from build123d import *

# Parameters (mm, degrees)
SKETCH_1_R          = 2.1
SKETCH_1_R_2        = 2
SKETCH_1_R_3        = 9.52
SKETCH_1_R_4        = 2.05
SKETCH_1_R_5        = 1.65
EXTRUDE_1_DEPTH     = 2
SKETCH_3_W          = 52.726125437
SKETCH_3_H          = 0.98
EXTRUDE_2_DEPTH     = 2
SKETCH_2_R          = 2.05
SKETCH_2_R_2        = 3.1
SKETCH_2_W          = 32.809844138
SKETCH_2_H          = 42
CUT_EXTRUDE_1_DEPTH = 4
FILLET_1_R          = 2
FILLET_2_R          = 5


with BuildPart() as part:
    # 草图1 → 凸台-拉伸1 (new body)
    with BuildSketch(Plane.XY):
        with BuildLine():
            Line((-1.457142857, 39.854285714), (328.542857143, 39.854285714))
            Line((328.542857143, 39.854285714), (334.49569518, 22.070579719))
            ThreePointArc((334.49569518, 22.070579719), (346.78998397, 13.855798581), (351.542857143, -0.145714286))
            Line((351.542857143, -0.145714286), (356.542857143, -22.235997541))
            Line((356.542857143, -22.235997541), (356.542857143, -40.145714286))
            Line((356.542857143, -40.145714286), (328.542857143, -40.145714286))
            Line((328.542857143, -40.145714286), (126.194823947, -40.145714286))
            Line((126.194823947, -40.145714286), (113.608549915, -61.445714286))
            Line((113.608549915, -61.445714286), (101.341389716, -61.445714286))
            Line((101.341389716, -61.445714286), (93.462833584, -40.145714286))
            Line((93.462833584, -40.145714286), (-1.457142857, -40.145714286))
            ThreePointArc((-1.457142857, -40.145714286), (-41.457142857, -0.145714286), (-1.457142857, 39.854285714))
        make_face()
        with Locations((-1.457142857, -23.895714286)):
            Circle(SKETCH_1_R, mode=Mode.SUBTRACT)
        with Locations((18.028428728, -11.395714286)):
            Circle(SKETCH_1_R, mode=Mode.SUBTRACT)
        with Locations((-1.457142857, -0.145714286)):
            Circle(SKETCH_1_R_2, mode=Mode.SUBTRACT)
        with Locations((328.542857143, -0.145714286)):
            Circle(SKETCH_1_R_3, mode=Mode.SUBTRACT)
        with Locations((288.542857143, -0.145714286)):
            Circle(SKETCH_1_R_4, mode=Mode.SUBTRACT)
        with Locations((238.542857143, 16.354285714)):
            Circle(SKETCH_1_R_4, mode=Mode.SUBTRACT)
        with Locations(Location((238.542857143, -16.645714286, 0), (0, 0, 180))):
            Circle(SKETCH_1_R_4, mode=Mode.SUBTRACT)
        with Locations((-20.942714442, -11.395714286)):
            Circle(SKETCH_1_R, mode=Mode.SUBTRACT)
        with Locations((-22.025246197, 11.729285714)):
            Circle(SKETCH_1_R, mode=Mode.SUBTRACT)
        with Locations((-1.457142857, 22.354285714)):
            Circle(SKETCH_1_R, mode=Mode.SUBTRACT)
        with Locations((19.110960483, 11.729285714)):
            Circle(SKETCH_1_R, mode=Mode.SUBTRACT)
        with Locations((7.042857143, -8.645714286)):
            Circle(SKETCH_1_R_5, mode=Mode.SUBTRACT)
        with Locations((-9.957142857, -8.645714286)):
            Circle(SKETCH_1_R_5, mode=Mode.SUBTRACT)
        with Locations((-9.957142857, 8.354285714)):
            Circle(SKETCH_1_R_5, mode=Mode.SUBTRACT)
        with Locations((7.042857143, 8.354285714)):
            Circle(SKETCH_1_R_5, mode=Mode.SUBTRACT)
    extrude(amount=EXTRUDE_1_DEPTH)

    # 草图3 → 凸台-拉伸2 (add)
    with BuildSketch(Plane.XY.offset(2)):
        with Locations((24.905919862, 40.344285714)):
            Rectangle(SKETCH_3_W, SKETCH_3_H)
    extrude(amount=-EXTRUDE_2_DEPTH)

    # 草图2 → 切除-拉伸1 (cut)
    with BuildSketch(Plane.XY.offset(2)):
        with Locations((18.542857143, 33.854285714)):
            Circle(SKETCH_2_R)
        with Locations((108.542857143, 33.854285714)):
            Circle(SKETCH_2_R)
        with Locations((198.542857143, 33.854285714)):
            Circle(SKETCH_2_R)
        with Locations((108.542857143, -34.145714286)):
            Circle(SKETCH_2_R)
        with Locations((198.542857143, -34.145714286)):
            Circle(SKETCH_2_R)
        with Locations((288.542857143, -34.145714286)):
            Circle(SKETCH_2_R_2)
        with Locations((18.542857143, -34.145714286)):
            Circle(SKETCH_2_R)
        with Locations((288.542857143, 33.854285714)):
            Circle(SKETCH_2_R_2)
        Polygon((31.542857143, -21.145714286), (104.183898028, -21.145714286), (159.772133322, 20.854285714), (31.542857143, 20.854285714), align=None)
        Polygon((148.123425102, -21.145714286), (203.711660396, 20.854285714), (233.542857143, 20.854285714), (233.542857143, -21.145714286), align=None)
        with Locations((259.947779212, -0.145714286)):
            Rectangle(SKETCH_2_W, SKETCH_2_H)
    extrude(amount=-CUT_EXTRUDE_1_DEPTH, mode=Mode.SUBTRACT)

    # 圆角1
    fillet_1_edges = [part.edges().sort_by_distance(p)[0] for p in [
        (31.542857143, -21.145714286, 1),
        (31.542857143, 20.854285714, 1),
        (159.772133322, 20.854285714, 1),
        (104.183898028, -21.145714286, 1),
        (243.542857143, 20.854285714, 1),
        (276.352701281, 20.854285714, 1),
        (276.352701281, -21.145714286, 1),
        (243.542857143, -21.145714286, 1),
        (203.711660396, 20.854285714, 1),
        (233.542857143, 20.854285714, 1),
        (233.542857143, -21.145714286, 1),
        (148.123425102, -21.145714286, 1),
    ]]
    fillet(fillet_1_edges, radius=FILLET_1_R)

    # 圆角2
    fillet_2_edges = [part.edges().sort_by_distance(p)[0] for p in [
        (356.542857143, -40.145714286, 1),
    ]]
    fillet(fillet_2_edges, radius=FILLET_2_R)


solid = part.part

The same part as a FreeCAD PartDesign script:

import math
import FreeCAD as App
import Part
import Sketcher

V = App.Vector


def edges_at(feature, points):
    """Names of the edges that pass closest to the given points."""
    edges = feature.Shape.Edges
    near = lambda p: min(range(len(edges)), key=lambda i: edges[i].distToShape(Part.Vertex(*p))[0])
    return sorted({f"Edge{near(p) + 1}" for p in points})


def add_polygon(sketch, points):
    """Adds a closed chain of lines whose ends are joined by coincident constraints."""
    first, n = sketch.GeometryCount, len(points)
    for a, b in zip(points, points[1:] + points[:1]):
        sketch.addGeometry(Part.LineSegment(App.Vector(*a, 0), App.Vector(*b, 0)), False)
    for i in range(n):
        sketch.addConstraint(Sketcher.Constraint("Coincident", first + i, 2, first + (i + 1) % n, 1))

doc = App.newDocument("Part")
body = doc.addObject("PartDesign::Body", "Body")

# Sketch on XY plane
sketch1 = body.newObject("Sketcher::SketchObject", "Sketch")
sketch1.AttachmentSupport = (doc.getObject("XY_Plane"), [""])
sketch1.MapMode = "FlatFace"
sketch1.addGeometry(Part.LineSegment(V(328.542857, 39.854286, 0), V(-1.457143, 39.854286, 0)), False)
sketch1.addGeometry(Part.ArcOfCircle(Part.Circle(V(-1.457143, -0.145714, 0), V(0, 0, 1), 40), math.radians(90), math.radians(270)), False)
sketch1.addGeometry(Part.LineSegment(V(-1.457143, -40.145714, 0), V(93.462834, -40.145714, 0)), False)
sketch1.addGeometry(Part.LineSegment(V(93.462834, -40.145714, 0), V(101.34139, -61.445714, 0)), False)
sketch1.addGeometry(Part.LineSegment(V(101.34139, -61.445714, 0), V(113.60855, -61.445714, 0)), False)
sketch1.addGeometry(Part.LineSegment(V(113.60855, -61.445714, 0), V(126.194824, -40.145714, 0)), False)
sketch1.addGeometry(Part.LineSegment(V(126.194824, -40.145714, 0), V(356.542857, -40.145714, 0)), False)
sketch1.addGeometry(Part.LineSegment(V(356.542857, -40.145714, 0), V(356.542857, -22.235998, 0)), False)
sketch1.addGeometry(Part.LineSegment(V(356.542857, -22.235998, 0), V(351.542857, -0.145714, 0)), False)
sketch1.addGeometry(Part.ArcOfCircle(Part.Circle(V(328.542857, -0.145714, 0), V(0, 0, 1), 23), math.radians(0), math.radians(75)), False)
sketch1.addGeometry(Part.LineSegment(V(334.495695, 22.07058, 0), V(328.542857, 39.854286, 0)), False)
sketch1.addGeometry(Part.Circle(V(238.542857, -16.645714, 0), V(0, 0, 1), 2.05), False)
sketch1.addGeometry(Part.Circle(V(-1.457143, -23.895714, 0), V(0, 0, 1), 2.1), False)
sketch1.addGeometry(Part.Circle(V(18.028429, -11.395714, 0), V(0, 0, 1), 2.1), False)
sketch1.addGeometry(Part.Circle(V(-20.942714, -11.395714, 0), V(0, 0, 1), 2.1), False)
sketch1.addGeometry(Part.Circle(V(7.042857, -8.645714, 0), V(0, 0, 1), 1.65), False)
sketch1.addGeometry(Part.Circle(V(-9.957143, -8.645714, 0), V(0, 0, 1), 1.65), False)
sketch1.addGeometry(Part.Circle(V(328.542857, -0.145714, 0), V(0, 0, 1), 9.52), False)
sketch1.addGeometry(Part.Circle(V(288.542857, -0.145714, 0), V(0, 0, 1), 2.05), False)
sketch1.addGeometry(Part.Circle(V(238.542857, 16.354286, 0), V(0, 0, 1), 2.05), False)
sketch1.addGeometry(Part.Circle(V(-1.457143, -0.145714, 0), V(0, 0, 1), 2), False)
sketch1.addGeometry(Part.Circle(V(7.042857, 8.354286, 0), V(0, 0, 1), 1.65), False)
sketch1.addGeometry(Part.Circle(V(-9.957143, 8.354286, 0), V(0, 0, 1), 1.65), False)
sketch1.addGeometry(Part.Circle(V(19.11096, 11.729286, 0), V(0, 0, 1), 2.1), False)
sketch1.addGeometry(Part.Circle(V(-22.025246, 11.729286, 0), V(0, 0, 1), 2.1), False)
sketch1.addGeometry(Part.Circle(V(-1.457143, 22.354286, 0), V(0, 0, 1), 2.1), False)
sketch1.addConstraint(Sketcher.Constraint("Tangent", 0, 2, 1, 1))
sketch1.addConstraint(Sketcher.Constraint("Tangent", 1, 2, 2, 1))
sketch1.addConstraint(Sketcher.Constraint("Coincident", 2, 2, 3, 1))
sketch1.addConstraint(Sketcher.Constraint("Coincident", 3, 2, 4, 1))
sketch1.addConstraint(Sketcher.Constraint("Coincident", 4, 2, 5, 1))
sketch1.addConstraint(Sketcher.Constraint("Coincident", 5, 2, 6, 1))
sketch1.addConstraint(Sketcher.Constraint("Coincident", 6, 2, 7, 1))
sketch1.addConstraint(Sketcher.Constraint("Coincident", 7, 2, 8, 1))
sketch1.addConstraint(Sketcher.Constraint("Coincident", 8, 2, 9, 1))
sketch1.addConstraint(Sketcher.Constraint("Coincident", 9, 2, 10, 1))
sketch1.addConstraint(Sketcher.Constraint("Coincident", 10, 2, 0, 1))
sketch1.addConstraint(Sketcher.Constraint("Horizontal", 0))
sketch1.addConstraint(Sketcher.Constraint("Horizontal", 2))
sketch1.addConstraint(Sketcher.Constraint("Horizontal", 4))
sketch1.addConstraint(Sketcher.Constraint("Horizontal", 6))
sketch1.addConstraint(Sketcher.Constraint("Vertical", 7))
sketch1.addConstraint(Sketcher.Constraint("Coincident", 17, 3, 9, 3))
sketch1.addConstraint(Sketcher.Constraint("Coincident", 20, 3, 1, 3))
sketch1.addConstraint(Sketcher.Constraint("Equal", 12, 13))
sketch1.addConstraint(Sketcher.Constraint("Equal", 13, 14))
sketch1.addConstraint(Sketcher.Constraint("Equal", 15, 16))
sketch1.addConstraint(Sketcher.Constraint("Equal", 11, 18))
sketch1.addConstraint(Sketcher.Constraint("Equal", 18, 19))
sketch1.addConstraint(Sketcher.Constraint("Equal", 16, 21))
sketch1.addConstraint(Sketcher.Constraint("Equal", 21, 22))
sketch1.addConstraint(Sketcher.Constraint("Equal", 14, 23))
sketch1.addConstraint(Sketcher.Constraint("Equal", 23, 24))
sketch1.addConstraint(Sketcher.Constraint("Equal", 24, 25))
sketch1.addConstraint(Sketcher.Constraint("Horizontal", 1, 3, 9, 3))
sketch1.addConstraint(Sketcher.Constraint("Horizontal", 13, 3, 14, 3))
sketch1.addConstraint(Sketcher.Constraint("Horizontal", 15, 3, 16, 3))
sketch1.addConstraint(Sketcher.Constraint("Horizontal", 17, 3, 18, 3))
sketch1.addConstraint(Sketcher.Constraint("Horizontal", 21, 3, 22, 3))
sketch1.addConstraint(Sketcher.Constraint("Horizontal", 23, 3, 24, 3))
sketch1.addConstraint(Sketcher.Constraint("Horizontal", 2, 2, 5, 2))
sketch1.addConstraint(Sketcher.Constraint("Horizontal", 20, 3, 8, 2))
sketch1.addConstraint(Sketcher.Constraint("Vertical", 1, 3, 12, 3))
sketch1.addConstraint(Sketcher.Constraint("Vertical", 11, 3, 19, 3))
sketch1.addConstraint(Sketcher.Constraint("Vertical", 15, 3, 21, 3))
sketch1.addConstraint(Sketcher.Constraint("Vertical", 16, 3, 22, 3))
sketch1.addConstraint(Sketcher.Constraint("Vertical", 20, 3, 25, 3))
sketch1.addConstraint(Sketcher.Constraint("Vertical", 17, 3, 10, 2))
sketch1.addConstraint(Sketcher.Constraint("Diameter", 20, 4.0))
sketch1.addConstraint(Sketcher.Constraint("Radius", 1, 40.0))
sketch1.addConstraint(Sketcher.Constraint("Radius", 9, 23.0))
sketch1.addConstraint(Sketcher.Constraint("Diameter", 11, 4.1))
sketch1.addConstraint(Sketcher.Constraint("Diameter", 12, 4.2))
sketch1.addConstraint(Sketcher.Constraint("Diameter", 15, 3.3))
sketch1.addConstraint(Sketcher.Constraint("Diameter", 17, 19.04))
sketch1.addConstraint(Sketcher.Constraint("DistanceX", 0, 2, 0, 1, 330.0))
sketch1.addConstraint(Sketcher.Constraint("DistanceX", 11, 3, 9, 3, 90.0))
sketch1.addConstraint(Sketcher.Constraint("DistanceY", 11, 3, 15, 3, 8.0))
sketch1.addConstraint(Sketcher.Constraint("DistanceX", 16, 3, 15, 3, 17.0))
sketch1.addConstraint(Sketcher.Constraint("DistanceX", 18, 3, 9, 3, 40.0))
sketch1.addConstraint(Sketcher.Constraint("DistanceY", 11, 3, 19, 3, 33.0))
sketch1.addConstraint(Sketcher.Constraint("DistanceY", 15, 3, 21, 3, 17.0))
sketch1.addConstraint(Sketcher.Constraint("DistanceY", 21, 3, 25, 3, 14.0))
sketch1.addConstraint(Sketcher.Constraint("DistanceX", 9, 3, 6, 2, 28.0))
sketch1.addConstraint(Sketcher.Constraint("DistanceY", 11, 3, 9, 3, 16.5))
sketch1.addConstraint(Sketcher.Constraint("DistanceY", 12, 3, 13, 3, 12.5))
sketch1.addConstraint(Sketcher.Constraint("DistanceX", 1, 3, 15, 3, 8.5))
sketch1.addConstraint(Sketcher.Constraint("DistanceY", 3, 2, 2, 2, 21.3))
sketch1.addConstraint(Sketcher.Constraint("DistanceY", 12, 3, 1, 3, 23.75))
sketch1.addConstraint(Sketcher.Constraint("DistanceY", 21, 3, 23, 3, 3.375))
sketch1.addConstraint(Sketcher.Constraint("DistanceX", 4, 1, 4, 2, 12.26716))
sketch1.addConstraint(Sketcher.Constraint("Distance", 5, 24.740742))
sketch1.addConstraint(Sketcher.Constraint("DistanceX", 2, 1, 2, 2, 94.919976))
sketch1.addConstraint(Sketcher.Constraint("DistanceX", 6, 1, 6, 2, 230.348033))
sketch1.addConstraint(Sketcher.Constraint("DistanceY", 7, 1, 7, 2, 17.909717))
sketch1.addConstraint(Sketcher.Constraint("DistanceX", -1, 1, 13, 3, 18.028429))
sketch1.addConstraint(Sketcher.Constraint("DistanceX", -1, 1, 23, 3, 19.11096))
sketch1.addConstraint(Sketcher.Constraint("DistanceX", -1, 1, 3, 2, 101.34139))
sketch1.addConstraint(Sketcher.Constraint("DistanceY", -1, 1, 9, 2, 22.07058))
sketch1.addConstraint(Sketcher.Constraint("DistanceX", 14, 3, 1, 3, 19.485572))
sketch1.addConstraint(Sketcher.Constraint("DistanceX", 24, 3, 14, 3, 1.082532))
sketch1.addConstraint(Sketcher.Constraint("DistanceX", 9, 3, 9, 2, 5.952838))
pad1 = body.newObject("PartDesign::Pad", "Pad")
pad1.Profile = sketch1
pad1.Length = 2

# Sketch on XY plane
sketch2 = body.newObject("Sketcher::SketchObject", "Sketch001")
sketch2.AttachmentSupport = (doc.getObject("XY_Plane"), [""])
sketch2.MapMode = "FlatFace"
sketch2.AttachmentOffset = App.Placement(V(0, 0, 2), App.Rotation())
add_polygon(sketch2, [(-1.457143, 40.834286), (-1.457143, 39.854286), (51.268983, 39.854286), (51.268983, 40.834286)])  # lines 0-3
sketch2.addConstraint(Sketcher.Constraint("Vertical", 0))
sketch2.addConstraint(Sketcher.Constraint("Horizontal", 1))
sketch2.addConstraint(Sketcher.Constraint("Vertical", 2))
sketch2.addConstraint(Sketcher.Constraint("Horizontal", 3))
sketch2.addConstraint(Sketcher.Constraint("DistanceY", 0, 2, 0, 1, 0.98))
sketch2.addConstraint(Sketcher.Constraint("DistanceX", 1, 1, 1, 2, 52.726125))
sketch2.addConstraint(Sketcher.Constraint("DistanceX", 0, 2, -1, 1, 1.457143))
sketch2.addConstraint(Sketcher.Constraint("DistanceY", -1, 1, 0, 2, 39.854286))
pad2 = body.newObject("PartDesign::Pad", "Pad001")
pad2.Profile = sketch2
pad2.Length = 2
pad2.Reversed = True

# Sketch on XY plane
sketch3 = body.newObject("Sketcher::SketchObject", "Sketch002")
sketch3.AttachmentSupport = (doc.getObject("XY_Plane"), [""])
sketch3.MapMode = "FlatFace"
sketch3.AttachmentOffset = App.Placement(V(0, 0, 2), App.Rotation())
sketch3.addGeometry(Part.Circle(V(18.542857, 33.854286, 0), V(0, 0, 1), 2.05), False)  # 0
sketch3.addGeometry(Part.Circle(V(108.542857, 33.854286, 0), V(0, 0, 1), 2.05), False)  # 1
sketch3.addGeometry(Part.Circle(V(198.542857, 33.854286, 0), V(0, 0, 1), 2.05), False)  # 2
sketch3.addGeometry(Part.Circle(V(108.542857, -34.145714, 0), V(0, 0, 1), 2.05), False)  # 3
sketch3.addGeometry(Part.Circle(V(198.542857, -34.145714, 0), V(0, 0, 1), 2.05), False)  # 4
sketch3.addGeometry(Part.Circle(V(288.542857, -34.145714, 0), V(0, 0, 1), 3.1), False)  # 5
sketch3.addGeometry(Part.Circle(V(18.542857, -34.145714, 0), V(0, 0, 1), 2.05), False)  # 6
sketch3.addGeometry(Part.Circle(V(288.542857, 33.854286, 0), V(0, 0, 1), 3.1), False)  # 7
add_polygon(sketch3, [(31.542857, -21.145714), (104.183898, -21.145714), (159.772133, 20.854286), (31.542857, 20.854286)])  # lines 8-11
add_polygon(sketch3, [(203.71166, 20.854286), (148.123425, -21.145714), (233.542857, -21.145714), (233.542857, 20.854286)])  # lines 12-15
add_polygon(sketch3, [(243.542857, 20.854286), (243.542857, -21.145714), (276.352701, -21.145714), (276.352701, 20.854286)])  # lines 16-19
sketch3.addConstraint(Sketcher.Constraint("Horizontal", 8))
sketch3.addConstraint(Sketcher.Constraint("Horizontal", 10))
sketch3.addConstraint(Sketcher.Constraint("Vertical", 11))
sketch3.addConstraint(Sketcher.Constraint("Horizontal", 13))
sketch3.addConstraint(Sketcher.Constraint("Vertical", 14))
sketch3.addConstraint(Sketcher.Constraint("Horizontal", 15))
sketch3.addConstraint(Sketcher.Constraint("Vertical", 16))
sketch3.addConstraint(Sketcher.Constraint("Horizontal", 17))
sketch3.addConstraint(Sketcher.Constraint("Vertical", 18))
sketch3.addConstraint(Sketcher.Constraint("Horizontal", 19))
sketch3.addConstraint(Sketcher.Constraint("Equal", 0, 1))
sketch3.addConstraint(Sketcher.Constraint("Equal", 1, 2))
sketch3.addConstraint(Sketcher.Constraint("Equal", 2, 3))
sketch3.addConstraint(Sketcher.Constraint("Equal", 3, 4))
sketch3.addConstraint(Sketcher.Constraint("Equal", 4, 6))
sketch3.addConstraint(Sketcher.Constraint("Equal", 5, 7))
sketch3.addConstraint(Sketcher.Constraint("Parallel", 9, 12))
sketch3.addConstraint(Sketcher.Constraint("Horizontal", 0, 3, 1, 3))
sketch3.addConstraint(Sketcher.Constraint("Horizontal", 1, 3, 2, 3))
sketch3.addConstraint(Sketcher.Constraint("Horizontal", 3, 3, 4, 3))
sketch3.addConstraint(Sketcher.Constraint("Horizontal", 4, 3, 5, 3))
sketch3.addConstraint(Sketcher.Constraint("Horizontal", 5, 3, 6, 3))
sketch3.addConstraint(Sketcher.Constraint("Horizontal", 2, 3, 7, 3))
sketch3.addConstraint(Sketcher.Constraint("Horizontal", 11, 2, 12, 2))
sketch3.addConstraint(Sketcher.Constraint("Horizontal", 10, 2, 14, 2))
sketch3.addConstraint(Sketcher.Constraint("Horizontal", 13, 2, 16, 2))
sketch3.addConstraint(Sketcher.Constraint("Horizontal", 15, 2, 18, 2))
sketch3.addConstraint(Sketcher.Constraint("Vertical", 1, 3, 3, 3))
sketch3.addConstraint(Sketcher.Constraint("Vertical", 2, 3, 4, 3))
sketch3.addConstraint(Sketcher.Constraint("Vertical", 0, 3, 6, 3))
sketch3.addConstraint(Sketcher.Constraint("Vertical", 5, 3, 7, 3))
sketch3.addConstraint(Sketcher.Constraint("Diameter", 0, 4.1))
sketch3.addConstraint(Sketcher.Constraint("Diameter", 5, 6.2))
sketch3.addConstraint(Sketcher.Constraint("DistanceY", 11, 2, 11, 1, 42.0))
sketch3.addConstraint(Sketcher.Constraint("DistanceX", 0, 3, 1, 3, 90.0))
sketch3.addConstraint(Sketcher.Constraint("DistanceX", 1, 3, 2, 3, 90.0))
sketch3.addConstraint(Sketcher.Constraint("DistanceY", 3, 3, 1, 3, 68.0))
sketch3.addConstraint(Sketcher.Constraint("DistanceX", 4, 3, 5, 3, 90.0))
sketch3.addConstraint(Sketcher.Constraint("DistanceY", 3, 3, 8, 2, 13.0))
sketch3.addConstraint(Sketcher.Constraint("DistanceX", 0, 3, 10, 2, 13.0))
sketch3.addConstraint(Sketcher.Constraint("DistanceX", 4, 3, 13, 2, 35.0))
sketch3.addConstraint(Sketcher.Constraint("DistanceX", 13, 2, 16, 2, 10.0))
sketch3.addConstraint(Sketcher.Constraint("DistanceX", 8, 1, 8, 2, 72.641041))
sketch3.addConstraint(Sketcher.Constraint("DistanceX", -1, 1, 8, 2, 104.183898))
sketch3.addConstraint(Sketcher.Constraint("DistanceX", -1, 1, 17, 2, 276.352701))
sketch3.addConstraint(Sketcher.Constraint("DistanceX", 10, 2, 10, 1, 128.229276))
sketch3.addConstraint(Sketcher.Constraint("DistanceX", 13, 1, 13, 2, 85.419432))
sketch3.addConstraint(Sketcher.Constraint("DistanceY", -1, 1, 0, 3, 33.854286))
pocket1 = body.newObject("PartDesign::Pocket", "Pocket")
pocket1.Profile = sketch3
pocket1.Length = 4
doc.recompute()

fillet = body.newObject("PartDesign::Fillet", "Fillet")
fillet.Base = (pocket1, edges_at(pocket1, [
    (31.543, -21.146, 1),
    (31.543, 20.854, 1),
    (159.772, 20.854, 1),
    (104.184, -21.146, 1),
    (243.543, 20.854, 1),
    (276.353, 20.854, 1),
    (276.353, -21.146, 1),
    (243.543, -21.146, 1),
    (203.712, 20.854, 1),
    (233.543, 20.854, 1),
    (233.543, -21.146, 1),
    (148.123, -21.146, 1),
]))
fillet.Radius = 2
doc.recompute()

fillet2 = body.newObject("PartDesign::Fillet", "Fillet001")
fillet2.Base = (fillet, edges_at(fillet, [(356.543, -40.146, 1)]))
fillet2.Radius = 5

doc.recompute()
